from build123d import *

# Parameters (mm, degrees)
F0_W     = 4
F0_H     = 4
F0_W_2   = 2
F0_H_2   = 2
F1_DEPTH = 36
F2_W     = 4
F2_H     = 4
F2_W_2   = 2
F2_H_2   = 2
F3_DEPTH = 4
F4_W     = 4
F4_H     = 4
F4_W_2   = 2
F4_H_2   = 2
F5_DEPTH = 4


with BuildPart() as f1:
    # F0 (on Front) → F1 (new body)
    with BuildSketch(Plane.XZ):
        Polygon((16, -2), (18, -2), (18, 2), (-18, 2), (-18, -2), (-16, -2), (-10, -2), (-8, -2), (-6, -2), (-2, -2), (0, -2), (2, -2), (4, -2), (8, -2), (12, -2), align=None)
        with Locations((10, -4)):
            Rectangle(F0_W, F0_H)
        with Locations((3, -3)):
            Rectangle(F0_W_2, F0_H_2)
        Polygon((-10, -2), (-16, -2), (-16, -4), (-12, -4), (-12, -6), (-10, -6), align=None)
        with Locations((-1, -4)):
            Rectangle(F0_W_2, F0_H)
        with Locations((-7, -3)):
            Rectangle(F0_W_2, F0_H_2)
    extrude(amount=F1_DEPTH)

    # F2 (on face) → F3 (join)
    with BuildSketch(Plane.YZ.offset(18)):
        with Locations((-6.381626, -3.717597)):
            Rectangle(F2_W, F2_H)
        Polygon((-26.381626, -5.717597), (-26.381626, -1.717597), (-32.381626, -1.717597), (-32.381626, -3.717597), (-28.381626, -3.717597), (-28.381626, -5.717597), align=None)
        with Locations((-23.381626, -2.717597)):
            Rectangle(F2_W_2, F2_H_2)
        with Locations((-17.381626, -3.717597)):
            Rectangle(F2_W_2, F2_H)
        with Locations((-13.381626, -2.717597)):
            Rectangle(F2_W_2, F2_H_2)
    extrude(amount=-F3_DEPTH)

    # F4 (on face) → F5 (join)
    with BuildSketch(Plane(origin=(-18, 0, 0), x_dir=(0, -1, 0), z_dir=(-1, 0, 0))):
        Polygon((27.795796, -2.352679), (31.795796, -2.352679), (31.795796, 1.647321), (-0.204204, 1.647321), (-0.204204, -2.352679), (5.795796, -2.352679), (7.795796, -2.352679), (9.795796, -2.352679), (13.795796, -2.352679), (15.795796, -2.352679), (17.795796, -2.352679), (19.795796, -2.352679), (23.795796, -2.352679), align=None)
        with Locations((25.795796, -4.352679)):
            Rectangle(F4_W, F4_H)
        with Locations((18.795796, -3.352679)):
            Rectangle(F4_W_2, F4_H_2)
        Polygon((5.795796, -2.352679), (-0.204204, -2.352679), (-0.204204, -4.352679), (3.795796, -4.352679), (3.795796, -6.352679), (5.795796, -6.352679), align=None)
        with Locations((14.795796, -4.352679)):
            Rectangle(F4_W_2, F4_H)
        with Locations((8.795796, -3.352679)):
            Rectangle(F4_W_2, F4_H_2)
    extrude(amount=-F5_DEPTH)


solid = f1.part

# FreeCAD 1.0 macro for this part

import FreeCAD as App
import Part
import Sketcher

V = App.Vector
Q = App.Units.Quantity

doc = App.newDocument("Part")
body = doc.addObject("PartDesign::Body", "Body")

sketch1 = body.newObject("Sketcher::SketchObject", "Sketch")
sketch1.AttachmentSupport = (doc.getObject("XZ_Plane"), [""])
sketch1.MapMode = "FlatFace"
sketch1.addGeometry([
    Part.LineSegment(V(18, -2, 0), V(18, 2, 0)),
    Part.LineSegment(V(18, 2, 0), V(-18, 2, 0)),
    Part.LineSegment(V(-18, 2, 0), V(-18, -2, 0)),
    Part.LineSegment(V(-18, -2, 0), V(-16, -2, 0)),
    Part.LineSegment(V(-16, -2, 0), V(-16, -4, 0)),
    Part.LineSegment(V(-16, -4, 0), V(-12, -4, 0)),
    Part.LineSegment(V(-12, -4, 0), V(-12, -6, 0)),
    Part.LineSegment(V(-12, -6, 0), V(-10, -6, 0)),
    Part.LineSegment(V(-10, -6, 0), V(-10, -2, 0)),
    Part.LineSegment(V(-10, -2, 0), V(-8, -2, 0)),
    Part.LineSegment(V(-8, -2, 0), V(-8, -4, 0)),
    Part.LineSegment(V(-8, -4, 0), V(-6, -4, 0)),
    Part.LineSegment(V(-6, -4, 0), V(-6, -2, 0)),
    Part.LineSegment(V(-6, -2, 0), V(-2, -2, 0)),
    Part.LineSegment(V(-2, -2, 0), V(-2, -6, 0)),
    Part.LineSegment(V(-2, -6, 0), V(0, -6, 0)),
    Part.LineSegment(V(0, -6, 0), V(0, -2, 0)),
    Part.LineSegment(V(0, -2, 0), V(2, -2, 0)),
    Part.LineSegment(V(2, -2, 0), V(2, -4, 0)),
    Part.LineSegment(V(2, -4, 0), V(4, -4, 0)),
    Part.LineSegment(V(4, -4, 0), V(4, -2, 0)),
    Part.LineSegment(V(4, -2, 0), V(8, -2, 0)),
    Part.LineSegment(V(8, -2, 0), V(8, -6, 0)),
    Part.LineSegment(V(8, -6, 0), V(12, -6, 0)),
    Part.LineSegment(V(12, -6, 0), V(12, -2, 0)),
    Part.LineSegment(V(12, -2, 0), V(18, -2, 0)),
], False)
sketch1.addConstraint([
    Sketcher.Constraint("Coincident", 0, 2, 1, 1),
    Sketcher.Constraint("Coincident", 1, 2, 2, 1),
    Sketcher.Constraint("Coincident", 2, 2, 3, 1),
    Sketcher.Constraint("Coincident", 3, 2, 4, 1),
    Sketcher.Constraint("Coincident", 4, 2, 5, 1),
    Sketcher.Constraint("Coincident", 5, 2, 6, 1),
    Sketcher.Constraint("Coincident", 6, 2, 7, 1),
    Sketcher.Constraint("Coincident", 7, 2, 8, 1),
    Sketcher.Constraint("Coincident", 8, 2, 9, 1),
    Sketcher.Constraint("Coincident", 9, 2, 10, 1),
    Sketcher.Constraint("Coincident", 10, 2, 11, 1),
    Sketcher.Constraint("Coincident", 11, 2, 12, 1),
    Sketcher.Constraint("Coincident", 12, 2, 13, 1),
    Sketcher.Constraint("Coincident", 13, 2, 14, 1),
    Sketcher.Constraint("Coincident", 14, 2, 15, 1),
    Sketcher.Constraint("Coincident", 15, 2, 16, 1),
    Sketcher.Constraint("Coincident", 16, 2, 17, 1),
    Sketcher.Constraint("Coincident", 17, 2, 18, 1),
    Sketcher.Constraint("Coincident", 18, 2, 19, 1),
    Sketcher.Constraint("Coincident", 19, 2, 20, 1),
    Sketcher.Constraint("Coincident", 20, 2, 21, 1),
    Sketcher.Constraint("Coincident", 21, 2, 22, 1),
    Sketcher.Constraint("Coincident", 22, 2, 23, 1),
    Sketcher.Constraint("Coincident", 23, 2, 24, 1),
    Sketcher.Constraint("Coincident", 24, 2, 25, 1),
    Sketcher.Constraint("Coincident", 25, 2, 0, 1),
    Sketcher.Constraint("Vertical", 0),
    Sketcher.Constraint("Horizontal", 1),
    Sketcher.Constraint("Vertical", 2),
    Sketcher.Constraint("Horizontal", 3),
    Sketcher.Constraint("Vertical", 4),
    Sketcher.Constraint("Horizontal", 5),
    Sketcher.Constraint("Vertical", 6),
    Sketcher.Constraint("Horizontal", 7),
    Sketcher.Constraint("Vertical", 8),
    Sketcher.Constraint("Horizontal", 9),
    Sketcher.Constraint("Vertical", 10),
    Sketcher.Constraint("Horizontal", 11),
    Sketcher.Constraint("Vertical", 12),
    Sketcher.Constraint("Horizontal", 13),
    Sketcher.Constraint("Vertical", 14),
    Sketcher.Constraint("Horizontal", 15),
    Sketcher.Constraint("Vertical", 16),
    Sketcher.Constraint("Horizontal", 17),
    Sketcher.Constraint("Vertical", 18),
    Sketcher.Constraint("Horizontal", 19),
    Sketcher.Constraint("Vertical", 20),
    Sketcher.Constraint("Horizontal", 21),
    Sketcher.Constraint("Vertical", 22),
    Sketcher.Constraint("Horizontal", 23),
    Sketcher.Constraint("Vertical", 24),
    Sketcher.Constraint("Horizontal", 25),
    Sketcher.Constraint("Symmetric", 0, 2, 2, 2, -1, 1),
    Sketcher.Constraint("Symmetric", 13, 2, 17, 2, -2),
    Sketcher.Constraint("Symmetric", 9, 2, 21, 2, -2),
    Sketcher.Constraint("Symmetric", 6, 2, 23, 2, -2),
    Sketcher.Constraint("PointOnObject", 15, 2, -2),
    Sketcher.Constraint("Horizontal", 3, 2, 8, 2),
    Sketcher.Constraint("Horizontal", 5, 2, 10, 2),
    Sketcher.Constraint("Horizontal", 9, 2, 12, 2),
    Sketcher.Constraint("Horizontal", 7, 2, 14, 2),
    Sketcher.Constraint("Horizontal", 11, 2, 18, 2),
    Sketcher.Constraint("Horizontal", 21, 2, 24, 2),
    Sketcher.Constraint("Equal", 3, 7),
    Sketcher.Constraint("Equal", 7, 9),
    Sketcher.Constraint("Equal", 9, 11),
    Sketcher.Constraint("Equal", 5, 13),
    Sketcher.Constraint("Equal", 11, 15),
    Sketcher.Constraint("Equal", 17, 19),
    Sketcher.Constraint("Equal", 21, 23),
    Sketcher.Constraint("Equal", 23, 0),
    Sketcher.Constraint("Equal", 19, 4),
    Sketcher.Constraint("Equal", 4, 6),
    Sketcher.Constraint("DistanceX", 1, 2, 1, 1, Q("36 mm")),
])
pad1 = body.newObject("PartDesign::Pad", "Pad")
pad1.Profile = sketch1
pad1.Length = 36

sketch2 = body.newObject("Sketcher::SketchObject", "Sketch001")
sketch2.AttachmentSupport = (doc.getObject("YZ_Plane"), [""])
sketch2.MapMode = "FlatFace"
sketch2.AttachmentOffset = App.Placement(V(0, 0, 18), App.Rotation())
sketch2.addGeometry([
    Part.LineSegment(V(-8.4, -1.7, 0), V(-8.4, -5.7, 0)),
    Part.LineSegment(V(-8.4, -5.7, 0), V(-4.4, -5.7, 0)),
    Part.LineSegment(V(-4.4, -5.7, 0), V(-4.4, -1.7, 0)),
    Part.LineSegment(V(-4.4, -1.7, 0), V(-8.4, -1.7, 0)),
    Part.LineSegment(V(-26.4, -5.7, 0), V(-26.4, -1.7, 0)),
    Part.LineSegment(V(-26.4, -1.7, 0), V(-32.4, -1.7, 0)),
    Part.LineSegment(V(-32.4, -1.7, 0), V(-32.4, -3.7, 0)),
    Part.LineSegment(V(-32.4, -3.7, 0), V(-28.4, -3.7, 0)),
    Part.LineSegment(V(-28.4, -3.7, 0), V(-28.4, -5.7, 0)),
    Part.LineSegment(V(-28.4, -5.7, 0), V(-26.4, -5.7, 0)),
    Part.LineSegment(V(-24.4, -1.7, 0), V(-24.4, -3.7, 0)),
    Part.LineSegment(V(-24.4, -3.7, 0), V(-22.4, -3.7, 0)),
    Part.LineSegment(V(-22.4, -3.7, 0), V(-22.4, -1.7, 0)),
    Part.LineSegment(V(-22.4, -1.7, 0), V(-24.4, -1.7, 0)),
    Part.LineSegment(V(-18.4, -1.7, 0), V(-18.4, -5.7, 0)),
    Part.LineSegment(V(-18.4, -5.7, 0), V(-16.4, -5.7, 0)),
    Part.LineSegment(V(-16.4, -5.7, 0), V(-16.4, -1.7, 0)),
    Part.LineSegment(V(-16.4, -1.7, 0), V(-18.4, -1.7, 0)),
    Part.LineSegment(V(-14.4, -1.7, 0), V(-14.4, -3.7, 0)),
    Part.LineSegment(V(-14.4, -3.7, 0), V(-12.4, -3.7, 0)),
    Part.LineSegment(V(-12.4, -3.7, 0), V(-12.4, -1.7, 0)),
    Part.LineSegment(V(-12.4, -1.7, 0), V(-14.4, -1.7, 0)),
], False)
sketch2.addConstraint([
    Sketcher.Constraint("Coincident", 0, 2, 1, 1),
    Sketcher.Constraint("Coincident", 1, 2, 2, 1),
    Sketcher.Constraint("Coincident", 2, 2, 3, 1),
    Sketcher.Constraint("Coincident", 3, 2, 0, 1),
    Sketcher.Constraint("Coincident", 4, 2, 5, 1),
    Sketcher.Constraint("Coincident", 5, 2, 6, 1),
    Sketcher.Constraint("Coincident", 6, 2, 7, 1),
    Sketcher.Constraint("Coincident", 7, 2, 8, 1),
    Sketcher.Constraint("Coincident", 8, 2, 9, 1),
    Sketcher.Constraint("Coincident", 9, 2, 4, 1),
    Sketcher.Constraint("Coincident", 10, 2, 11, 1),
    Sketcher.Constraint("Coincident", 11, 2, 12, 1),
    Sketcher.Constraint("Coincident", 12, 2, 13, 1),
    Sketcher.Constraint("Coincident", 13, 2, 10, 1),
    Sketcher.Constraint("Coincident", 14, 2, 15, 1),
    Sketcher.Constraint("Coincident", 15, 2, 16, 1),
    Sketcher.Constraint("Coincident", 16, 2, 17, 1),
    Sketcher.Constraint("Coincident", 17, 2, 14, 1),
    Sketcher.Constraint("Coincident", 18, 2, 19, 1),
    Sketcher.Constraint("Coincident", 19, 2, 20, 1),
    Sketcher.Constraint("Coincident", 20, 2, 21, 1),
    Sketcher.Constraint("Coincident", 21, 2, 18, 1),
    Sketcher.Constraint("Vertical", 0),
    Sketcher.Constraint("Horizontal", 1),
    Sketcher.Constraint("Vertical", 2),
    Sketcher.Constraint("Horizontal", 3),
    Sketcher.Constraint("Vertical", 4),
    Sketcher.Constraint("Horizontal", 5),
    Sketcher.Constraint("Vertical", 6),
    Sketcher.Constraint("Horizontal", 7),
    Sketcher.Constraint("Vertical", 8),
    Sketcher.Constraint("Horizontal", 9),
    Sketcher.Constraint("Vertical", 10),
    Sketcher.Constraint("Horizontal", 11),
    Sketcher.Constraint("Vertical", 12),
    Sketcher.Constraint("Horizontal", 13),
    Sketcher.Constraint("Vertical", 14),
    Sketcher.Constraint("Horizontal", 15),
    Sketcher.Constraint("Vertical", 16),
    Sketcher.Constraint("Horizontal", 17),
    Sketcher.Constraint("Vertical", 18),
    Sketcher.Constraint("Horizontal", 19),
    Sketcher.Constraint("Vertical", 20),
    Sketcher.Constraint("Horizontal", 21),
    Sketcher.Constraint("Horizontal", 3, 2, 4, 2),
    Sketcher.Constraint("Horizontal", 1, 2, 8, 2),
    Sketcher.Constraint("Horizontal", 7, 2, 10, 2),
    Sketcher.Constraint("Horizontal", 5, 2, 12, 2),
    Sketcher.Constraint("Horizontal", 9, 2, 14, 2),
    Sketcher.Constraint("Horizontal", 13, 2, 16, 2),
    Sketcher.Constraint("Horizontal", 11, 2, 18, 2),
    Sketcher.Constraint("Horizontal", 17, 2, 20, 2),
    Sketcher.Constraint("Equal", 3, 7),
    Sketcher.Constraint("Equal", 9, 11),
    Sketcher.Constraint("Equal", 13, 15),
    Sketcher.Constraint("Equal", 17, 19),
    Sketcher.Constraint("Equal", 7, 0),
    Sketcher.Constraint("Equal", 21, 6),
    Sketcher.Constraint("Equal", 6, 8),
    Sketcher.Constraint("DistanceX", 1, 1, 1, 2, Q("4 mm")),
    Sketcher.Constraint("DistanceX", 4, 2, 3, 2, Q("18 mm")),
    Sketcher.Constraint("DistanceX", 9, 2, 10, 2, Q("2 mm")),
    Sketcher.Constraint("DistanceX", 11, 2, 14, 2, Q("4 mm")),
    Sketcher.Constraint("DistanceX", 15, 2, 18, 2, Q("2 mm")),
    Sketcher.Constraint("DistanceX", 0, 2, -1, 1, Q("8.381626 mm")),
    Sketcher.Constraint("DistanceY", 0, 2, -1, 1, Q("5.717597 mm")),
])
pad2 = body.newObject("PartDesign::Pad", "Pad001")
pad2.Profile = sketch2
pad2.Length = 4
pad2.Reversed = True

sketch3 = body.newObject("Sketcher::SketchObject", "Sketch002")
sketch3.AttachmentSupport = (doc.getObject("YZ_Plane"), [""])
sketch3.MapMode = "FlatFace"
sketch3.AttachmentOffset = App.Placement(V(0, 0, -18), App.Rotation())
sketch3.addGeometry([
    Part.LineSegment(V(-31.8, -2.4, 0), V(-31.8, 1.6, 0)),
    Part.LineSegment(V(-31.8, 1.6, 0), V(0.2, 1.6, 0)),
    Part.LineSegment(V(0.2, 1.6, 0), V(0.2, -4.4, 0)),
    Part.LineSegment(V(0.2, -4.4, 0), V(-3.8, -4.4, 0)),
    Part.LineSegment(V(-3.8, -4.4, 0), V(-3.8, -6.4, 0)),
    Part.LineSegment(V(-3.8, -6.4, 0), V(-5.8, -6.4, 0)),
    Part.LineSegment(V(-5.8, -6.4, 0), V(-5.8, -2.4, 0)),
    Part.LineSegment(V(-5.8, -2.4, 0), V(-7.8, -2.4, 0)),
    Part.LineSegment(V(-7.8, -2.4, 0), V(-7.8, -4.4, 0)),
    Part.LineSegment(V(-7.8, -4.4, 0), V(-9.8, -4.4, 0)),
    Part.LineSegment(V(-9.8, -4.4, 0), V(-9.8, -2.4, 0)),
    Part.LineSegment(V(-9.8, -2.4, 0), V(-13.8, -2.4, 0)),
    Part.LineSegment(V(-13.8, -2.4, 0), V(-13.8, -6.4, 0)),
    Part.LineSegment(V(-13.8, -6.4, 0), V(-15.8, -6.4, 0)),
    Part.LineSegment(V(-15.8, -6.4, 0), V(-15.8, -2.4, 0)),
    Part.LineSegment(V(-15.8, -2.4, 0), V(-17.8, -2.4, 0)),
    Part.LineSegment(V(-17.8, -2.4, 0), V(-17.8, -4.4, 0)),
    Part.LineSegment(V(-17.8, -4.4, 0), V(-19.8, -4.4, 0)),
    Part.LineSegment(V(-19.8, -4.4, 0), V(-19.8, -2.4, 0)),
    Part.LineSegment(V(-19.8, -2.4, 0), V(-23.8, -2.4, 0)),
    Part.LineSegment(V(-23.8, -2.4, 0), V(-23.8, -6.4, 0)),
    Part.LineSegment(V(-23.8, -6.4, 0), V(-27.8, -6.4, 0)),
    Part.LineSegment(V(-27.8, -6.4, 0), V(-27.8, -2.4, 0)),
    Part.LineSegment(V(-27.8, -2.4, 0), V(-31.8, -2.4, 0)),
], False)
sketch3.addConstraint([
    Sketcher.Constraint("Coincident", 0, 2, 1, 1),
    Sketcher.Constraint("Coincident", 1, 2, 2, 1),
    Sketcher.Constraint("Coincident", 2, 2, 3, 1),
    Sketcher.Constraint("Coincident", 3, 2, 4, 1),
    Sketcher.Constraint("Coincident", 4, 2, 5, 1),
    Sketcher.Constraint("Coincident", 5, 2, 6, 1),
    Sketcher.Constraint("Coincident", 6, 2, 7, 1),
    Sketcher.Constraint("Coincident", 7, 2, 8, 1),
    Sketcher.Constraint("Coincident", 8, 2, 9, 1),
    Sketcher.Constraint("Coincident", 9, 2, 10, 1),
    Sketcher.Constraint("Coincident", 10, 2, 11, 1),
    Sketcher.Constraint("Coincident", 11, 2, 12, 1),
    Sketcher.Constraint("Coincident", 12, 2, 13, 1),
    Sketcher.Constraint("Coincident", 13, 2, 14, 1),
    Sketcher.Constraint("Coincident", 14, 2, 15, 1),
    Sketcher.Constraint("Coincident", 15, 2, 16, 1),
    Sketcher.Constraint("Coincident", 16, 2, 17, 1),
    Sketcher.Constraint("Coincident", 17, 2, 18, 1),
    Sketcher.Constraint("Coincident", 18, 2, 19, 1),
    Sketcher.Constraint("Coincident", 19, 2, 20, 1),
    Sketcher.Constraint("Coincident", 20, 2, 21, 1),
    Sketcher.Constraint("Coincident", 21, 2, 22, 1),
    Sketcher.Constraint("Coincident", 22, 2, 23, 1),
    Sketcher.Constraint("Coincident", 23, 2, 0, 1),
    Sketcher.Constraint("Vertical", 0),
    Sketcher.Constraint("Horizontal", 1),
    Sketcher.Constraint("Vertical", 2),
    Sketcher.Constraint("Horizontal", 3),
    Sketcher.Constraint("Vertical", 4),
    Sketcher.Constraint("Horizontal", 5),
    Sketcher.Constraint("Vertical", 6),
    Sketcher.Constraint("Horizontal", 7),
    Sketcher.Constraint("Vertical", 8),
    Sketcher.Constraint("Horizontal", 9),
    Sketcher.Constraint("Vertical", 10),
    Sketcher.Constraint("Horizontal", 11),
    Sketcher.Constraint("Vertical", 12),
    Sketcher.Constraint("Horizontal", 13),
    Sketcher.Constraint("Vertical", 14),
    Sketcher.Constraint("Horizontal", 15),
    Sketcher.Constraint("Vertical", 16),
    Sketcher.Constraint("Horizontal", 17),
    Sketcher.Constraint("Vertical", 18),
    Sketcher.Constraint("Horizontal", 19),
    Sketcher.Constraint("Vertical", 20),
    Sketcher.Constraint("Horizontal", 21),
    Sketcher.Constraint("Vertical", 22),
    Sketcher.Constraint("Horizontal", 23),
    Sketcher.Constraint("Horizontal", 3, 2, 8, 2),
    Sketcher.Constraint("Horizontal", 7, 2, 10, 2),
    Sketcher.Constraint("Horizontal", 5, 2, 12, 2),
    Sketcher.Constraint("Horizontal", 11, 2, 14, 2),
    Sketcher.Constraint("Horizontal", 9, 2, 16, 2),
    Sketcher.Constraint("Horizontal", 15, 2, 18, 2),
    Sketcher.Constraint("Horizontal", 13, 2, 20, 2),
    Sketcher.Constraint("Horizontal", 19, 2, 22, 2),
    Sketcher.Constraint("Equal", 5, 7),
    Sketcher.Constraint("Equal", 7, 9),
    Sketcher.Constraint("Equal", 3, 11),
    Sketcher.Constraint("Equal", 9, 13),
    Sketcher.Constraint("Equal", 13, 15),
    Sketcher.Constraint("Equal", 15, 17),
    Sketcher.Constraint("Equal", 11, 19),
    Sketcher.Constraint("Equal", 19, 21),
    Sketcher.Constraint("Equal", 21, 23),
    Sketcher.Constraint("Equal", 23, 0),
    Sketcher.Constraint("Equal", 17, 4),
    Sketcher.Constraint("Equal", 0, 6),
    Sketcher.Constraint("Equal", 4, 8),
    Sketcher.Constraint("DistanceX", 1, 1, 1, 2, Q("32 mm")),
    Sketcher.Constraint("DistanceY", -1, 1, 0, 2, Q("1.647321 mm")),
    Sketcher.Constraint("DistanceX", 0, 2, -1, 1, Q("31.795796 mm")),
])
pad3 = body.newObject("PartDesign::Pad", "Pad002")
pad3.Profile = sketch3
pad3.Length = 4

doc.recompute()
